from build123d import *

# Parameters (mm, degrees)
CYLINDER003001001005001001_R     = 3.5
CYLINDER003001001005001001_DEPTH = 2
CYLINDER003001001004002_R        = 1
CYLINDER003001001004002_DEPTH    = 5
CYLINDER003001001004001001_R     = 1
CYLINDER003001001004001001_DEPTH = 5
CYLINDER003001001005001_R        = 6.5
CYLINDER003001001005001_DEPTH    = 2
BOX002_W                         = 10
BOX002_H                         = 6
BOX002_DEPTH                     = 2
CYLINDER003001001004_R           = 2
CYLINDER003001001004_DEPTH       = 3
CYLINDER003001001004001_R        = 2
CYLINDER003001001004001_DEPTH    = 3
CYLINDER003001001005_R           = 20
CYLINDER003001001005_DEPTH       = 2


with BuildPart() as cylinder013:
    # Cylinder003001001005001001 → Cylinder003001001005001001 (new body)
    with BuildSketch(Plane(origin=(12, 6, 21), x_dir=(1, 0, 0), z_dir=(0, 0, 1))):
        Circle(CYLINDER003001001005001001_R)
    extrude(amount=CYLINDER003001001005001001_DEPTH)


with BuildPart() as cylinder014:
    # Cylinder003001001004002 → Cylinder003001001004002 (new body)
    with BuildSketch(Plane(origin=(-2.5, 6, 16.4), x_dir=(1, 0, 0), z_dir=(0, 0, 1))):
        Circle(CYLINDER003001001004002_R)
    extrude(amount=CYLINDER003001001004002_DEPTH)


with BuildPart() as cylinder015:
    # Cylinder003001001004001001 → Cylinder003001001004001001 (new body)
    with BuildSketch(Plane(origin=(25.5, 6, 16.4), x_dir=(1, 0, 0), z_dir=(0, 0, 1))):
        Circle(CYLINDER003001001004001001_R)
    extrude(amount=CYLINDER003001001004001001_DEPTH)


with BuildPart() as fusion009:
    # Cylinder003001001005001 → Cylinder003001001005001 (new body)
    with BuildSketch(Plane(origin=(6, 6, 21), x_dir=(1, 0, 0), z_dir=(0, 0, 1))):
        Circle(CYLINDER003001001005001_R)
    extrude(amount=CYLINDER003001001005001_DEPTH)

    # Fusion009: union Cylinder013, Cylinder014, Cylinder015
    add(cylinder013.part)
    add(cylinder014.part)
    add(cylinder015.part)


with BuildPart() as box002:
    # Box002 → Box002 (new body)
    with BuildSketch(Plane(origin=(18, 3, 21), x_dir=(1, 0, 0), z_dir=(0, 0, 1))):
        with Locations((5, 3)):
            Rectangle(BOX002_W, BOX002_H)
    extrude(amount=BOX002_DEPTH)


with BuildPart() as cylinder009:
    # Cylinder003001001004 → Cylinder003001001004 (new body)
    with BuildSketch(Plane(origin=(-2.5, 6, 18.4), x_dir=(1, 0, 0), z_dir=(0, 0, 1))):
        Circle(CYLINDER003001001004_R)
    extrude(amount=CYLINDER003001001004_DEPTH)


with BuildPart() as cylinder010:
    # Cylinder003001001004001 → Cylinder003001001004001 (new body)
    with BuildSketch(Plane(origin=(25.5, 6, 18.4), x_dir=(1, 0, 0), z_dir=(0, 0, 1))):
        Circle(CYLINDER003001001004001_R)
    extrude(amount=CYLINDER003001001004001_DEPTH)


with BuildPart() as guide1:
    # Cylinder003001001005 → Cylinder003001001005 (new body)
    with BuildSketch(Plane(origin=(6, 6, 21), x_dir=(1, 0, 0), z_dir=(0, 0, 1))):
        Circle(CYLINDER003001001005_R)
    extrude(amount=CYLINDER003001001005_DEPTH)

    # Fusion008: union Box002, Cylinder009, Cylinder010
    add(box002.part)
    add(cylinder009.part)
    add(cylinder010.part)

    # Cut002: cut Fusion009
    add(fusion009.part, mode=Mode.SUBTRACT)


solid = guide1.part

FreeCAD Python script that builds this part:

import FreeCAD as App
import Part
import Sketcher
from FreeCAD import Vector
Q = App.Units.Quantity

doc = App.newDocument("Part")
body = doc.addObject("PartDesign::Body", "Body")

# Sketch on XY plane
sketch1 = body.newObject("Sketcher::SketchObject", "Sketch")
sketch1.AttachmentSupport = (doc.getObject("XY_Plane"), [""])
sketch1.MapMode = "FlatFace"
sketch1.AttachmentOffset = App.Placement(Vector(0, 0, 21), App.Rotation())
sketch1.addGeometry(Part.Circle(Vector(12, 6, 0), Vector(0, 0, 1), 3.5), False)
sketch1.addConstraint([
    Sketcher.Constraint("Diameter", 0, Q("7 mm")),
    Sketcher.Constraint("DistanceX", -1, 1, 0, 3, Q("12 mm")),
    Sketcher.Constraint("DistanceY", -1, 1, 0, 3, Q("6 mm")),
])
pad1 = body.newObject("PartDesign::Pad", "Pad")
pad1.Profile = sketch1
pad1.Length = 2
body2 = doc.addObject("PartDesign::Body", "Body001")

# Sketch on XY plane
sketch2 = body2.newObject("Sketcher::SketchObject", "Sketch001")
sketch2.AttachmentSupport = (doc.getObject("XY_Plane001"), [""])
sketch2.MapMode = "FlatFace"
sketch2.AttachmentOffset = App.Placement(Vector(0, 0, 16.4), App.Rotation())
sketch2.addGeometry(Part.Circle(Vector(-2.5, 6, 0), Vector(0, 0, 1), 1), False)
sketch2.addConstraint([
    Sketcher.Constraint("Diameter", 0, Q("2 mm")),
    Sketcher.Constraint("DistanceY", -1, 1, 0, 3, Q("6 mm")),
    Sketcher.Constraint("DistanceX", 0, 3, -1, 1, Q("2.5 mm")),
])
pad2 = body2.newObject("PartDesign::Pad", "Pad001")
pad2.Profile = sketch2
pad2.Length = 5
body3 = doc.addObject("PartDesign::Body", "Body002")

# Sketch on XY plane
sketch3 = body3.newObject("Sketcher::SketchObject", "Sketch002")
sketch3.AttachmentSupport = (doc.getObject("XY_Plane002"), [""])
sketch3.MapMode = "FlatFace"
sketch3.AttachmentOffset = App.Placement(Vector(0, 0, 16.4), App.Rotation())
sketch3.addGeometry(Part.Circle(Vector(25.5, 6, 0), Vector(0, 0, 1), 1), False)
sketch3.addConstraint([
    Sketcher.Constraint("Diameter", 0, Q("2 mm")),
    Sketcher.Constraint("DistanceY", -1, 1, 0, 3, Q("6 mm")),
    Sketcher.Constraint("DistanceX", -1, 1, 0, 3, Q("25.5 mm")),
])
pad3 = body3.newObject("PartDesign::Pad", "Pad002")
pad3.Profile = sketch3
pad3.Length = 5
body4 = doc.addObject("PartDesign::Body", "Body003")
body4.AllowCompound = True

# Sketch on XY plane
sketch4 = body4.newObject("Sketcher::SketchObject", "Sketch003")
sketch4.AttachmentSupport = (doc.getObject("XY_Plane003"), [""])
sketch4.MapMode = "FlatFace"
sketch4.AttachmentOffset = App.Placement(Vector(0, 0, 21), App.Rotation())
sketch4.addGeometry(Part.Circle(Vector(6, 6, 0), Vector(0, 0, 1), 6.5), False)
sketch4.addConstraint([
    Sketcher.Constraint("Diameter", 0, Q("13 mm")),
    Sketcher.Constraint("DistanceX", -1, 1, 0, 3, Q("6 mm")),
    Sketcher.Constraint("DistanceY", -1, 1, 0, 3, Q("6 mm")),
])
pad4 = body4.newObject("PartDesign::Pad", "Pad003")
pad4.Profile = sketch4
pad4.Length = 2
doc.recompute()

boolean = body4.newObject("PartDesign::Boolean", "Boolean")
boolean.Type = "Fuse"
boolean.addObjects([body])
doc.recompute()

boolean2 = body4.newObject("PartDesign::Boolean", "Boolean001")
boolean2.Type = "Fuse"
boolean2.addObjects([body2])
doc.recompute()

boolean3 = body4.newObject("PartDesign::Boolean", "Boolean002")
boolean3.Type = "Fuse"
boolean3.addObjects([body3])
body5 = doc.addObject("PartDesign::Body", "Body004")

# Sketch on XY plane
sketch5 = body5.newObject("Sketcher::SketchObject", "Sketch004")
sketch5.AttachmentSupport = (doc.getObject("XY_Plane004"), [""])
sketch5.MapMode = "FlatFace"
sketch5.AttachmentOffset = App.Placement(Vector(0, 0, 21), App.Rotation())
sketch5.addGeometry([
    Part.LineSegment(Vector(18, 9, 0), Vector(18, 3, 0)),
    Part.LineSegment(Vector(18, 3, 0), Vector(28, 3, 0)),
    Part.LineSegment(Vector(28, 3, 0), Vector(28, 9, 0)),
    Part.LineSegment(Vector(28, 9, 0), Vector(18, 9, 0)),
], False)
sketch5.addConstraint([
    Sketcher.Constraint("Coincident", 0, 2, 1, 1),
    Sketcher.Constraint("Coincident", 1, 2, 2, 1),
    Sketcher.Constraint("Coincident", 2, 2, 3, 1),
    Sketcher.Constraint("Coincident", 3, 2, 0, 1),
    Sketcher.Constraint("Vertical", 0),
    Sketcher.Constraint("Horizontal", 1),
    Sketcher.Constraint("Vertical", 2),
    Sketcher.Constraint("Horizontal", 3),
    Sketcher.Constraint("DistanceX", 1, 1, 1, 2, Q("10 mm")),
    Sketcher.Constraint("DistanceY", 0, 2, 0, 1, Q("6 mm")),
    Sketcher.Constraint("DistanceX", -1, 1, 0, 2, Q("18 mm")),
    Sketcher.Constraint("DistanceY", -1, 1, 0, 2, Q("3 mm")),
])
pad5 = body5.newObject("PartDesign::Pad", "Pad004")
pad5.Profile = sketch5
pad5.Length = 2
body6 = doc.addObject("PartDesign::Body", "Body005")

# Sketch on XY plane
sketch6 = body6.newObject("Sketcher::SketchObject", "Sketch005")
sketch6.AttachmentSupport = (doc.getObject("XY_Plane005"), [""])
sketch6.MapMode = "FlatFace"
sketch6.AttachmentOffset = App.Placement(Vector(0, 0, 18.4), App.Rotation())
sketch6.addGeometry(Part.Circle(Vector(-2.5, 6, 0), Vector(0, 0, 1), 2), False)
sketch6.addConstraint([
    Sketcher.Constraint("Diameter", 0, Q("4 mm")),
    Sketcher.Constraint("DistanceY", -1, 1, 0, 3, Q("6 mm")),
    Sketcher.Constraint("DistanceX", 0, 3, -1, 1, Q("2.5 mm")),
])
pad6 = body6.newObject("PartDesign::Pad", "Pad005")
pad6.Profile = sketch6
pad6.Length = 3
body7 = doc.addObject("PartDesign::Body", "Body006")

# Sketch on XY plane
sketch7 = body7.newObject("Sketcher::SketchObject", "Sketch006")
sketch7.AttachmentSupport = (doc.getObject("XY_Plane006"), [""])
sketch7.MapMode = "FlatFace"
sketch7.AttachmentOffset = App.Placement(Vector(0, 0, 18.4), App.Rotation())
sketch7.addGeometry(Part.Circle(Vector(25.5, 6, 0), Vector(0, 0, 1), 2), False)
sketch7.addConstraint([
    Sketcher.Constraint("Diameter", 0, Q("4 mm")),
    Sketcher.Constraint("DistanceY", -1, 1, 0, 3, Q("6 mm")),
    Sketcher.Constraint("DistanceX", -1, 1, 0, 3, Q("25.5 mm")),
])
pad7 = body7.newObject("PartDesign::Pad", "Pad006")
pad7.Profile = sketch7
pad7.Length = 3
body8 = doc.addObject("PartDesign::Body", "Body007")

# Sketch on XY plane
sketch8 = body8.newObject("Sketcher::SketchObject", "Sketch007")
sketch8.AttachmentSupport = (doc.getObject("XY_Plane007"), [""])
sketch8.MapMode = "FlatFace"
sketch8.AttachmentOffset = App.Placement(Vector(0, 0, 21), App.Rotation())
sketch8.addGeometry(Part.Circle(Vector(6, 6, 0), Vector(0, 0, 1), 20), False)
sketch8.addConstraint([
    Sketcher.Constraint("Diameter", 0, Q("40 mm")),
    Sketcher.Constraint("DistanceX", -1, 1, 0, 3, Q("6 mm")),
    Sketcher.Constraint("DistanceY", -1, 1, 0, 3, Q("6 mm")),
])
pad8 = body8.newObject("PartDesign::Pad", "Pad007")
pad8.Profile = sketch8
pad8.Length = 2
doc.recompute()

boolean4 = body8.newObject("PartDesign::Boolean", "Boolean003")
boolean4.Type = "Fuse"
boolean4.addObjects([body5])
doc.recompute()

boolean5 = body8.newObject("PartDesign::Boolean", "Boolean004")
boolean5.Type = "Fuse"
boolean5.addObjects([body6])
doc.recompute()

boolean6 = body8.newObject("PartDesign::Boolean", "Boolean005")
boolean6.Type = "Fuse"
boolean6.addObjects([body7])
doc.recompute()

boolean7 = body8.newObject("PartDesign::Boolean", "Boolean006")
boolean7.Type = "Cut"
boolean7.addObjects([body4])

doc.recompute()
